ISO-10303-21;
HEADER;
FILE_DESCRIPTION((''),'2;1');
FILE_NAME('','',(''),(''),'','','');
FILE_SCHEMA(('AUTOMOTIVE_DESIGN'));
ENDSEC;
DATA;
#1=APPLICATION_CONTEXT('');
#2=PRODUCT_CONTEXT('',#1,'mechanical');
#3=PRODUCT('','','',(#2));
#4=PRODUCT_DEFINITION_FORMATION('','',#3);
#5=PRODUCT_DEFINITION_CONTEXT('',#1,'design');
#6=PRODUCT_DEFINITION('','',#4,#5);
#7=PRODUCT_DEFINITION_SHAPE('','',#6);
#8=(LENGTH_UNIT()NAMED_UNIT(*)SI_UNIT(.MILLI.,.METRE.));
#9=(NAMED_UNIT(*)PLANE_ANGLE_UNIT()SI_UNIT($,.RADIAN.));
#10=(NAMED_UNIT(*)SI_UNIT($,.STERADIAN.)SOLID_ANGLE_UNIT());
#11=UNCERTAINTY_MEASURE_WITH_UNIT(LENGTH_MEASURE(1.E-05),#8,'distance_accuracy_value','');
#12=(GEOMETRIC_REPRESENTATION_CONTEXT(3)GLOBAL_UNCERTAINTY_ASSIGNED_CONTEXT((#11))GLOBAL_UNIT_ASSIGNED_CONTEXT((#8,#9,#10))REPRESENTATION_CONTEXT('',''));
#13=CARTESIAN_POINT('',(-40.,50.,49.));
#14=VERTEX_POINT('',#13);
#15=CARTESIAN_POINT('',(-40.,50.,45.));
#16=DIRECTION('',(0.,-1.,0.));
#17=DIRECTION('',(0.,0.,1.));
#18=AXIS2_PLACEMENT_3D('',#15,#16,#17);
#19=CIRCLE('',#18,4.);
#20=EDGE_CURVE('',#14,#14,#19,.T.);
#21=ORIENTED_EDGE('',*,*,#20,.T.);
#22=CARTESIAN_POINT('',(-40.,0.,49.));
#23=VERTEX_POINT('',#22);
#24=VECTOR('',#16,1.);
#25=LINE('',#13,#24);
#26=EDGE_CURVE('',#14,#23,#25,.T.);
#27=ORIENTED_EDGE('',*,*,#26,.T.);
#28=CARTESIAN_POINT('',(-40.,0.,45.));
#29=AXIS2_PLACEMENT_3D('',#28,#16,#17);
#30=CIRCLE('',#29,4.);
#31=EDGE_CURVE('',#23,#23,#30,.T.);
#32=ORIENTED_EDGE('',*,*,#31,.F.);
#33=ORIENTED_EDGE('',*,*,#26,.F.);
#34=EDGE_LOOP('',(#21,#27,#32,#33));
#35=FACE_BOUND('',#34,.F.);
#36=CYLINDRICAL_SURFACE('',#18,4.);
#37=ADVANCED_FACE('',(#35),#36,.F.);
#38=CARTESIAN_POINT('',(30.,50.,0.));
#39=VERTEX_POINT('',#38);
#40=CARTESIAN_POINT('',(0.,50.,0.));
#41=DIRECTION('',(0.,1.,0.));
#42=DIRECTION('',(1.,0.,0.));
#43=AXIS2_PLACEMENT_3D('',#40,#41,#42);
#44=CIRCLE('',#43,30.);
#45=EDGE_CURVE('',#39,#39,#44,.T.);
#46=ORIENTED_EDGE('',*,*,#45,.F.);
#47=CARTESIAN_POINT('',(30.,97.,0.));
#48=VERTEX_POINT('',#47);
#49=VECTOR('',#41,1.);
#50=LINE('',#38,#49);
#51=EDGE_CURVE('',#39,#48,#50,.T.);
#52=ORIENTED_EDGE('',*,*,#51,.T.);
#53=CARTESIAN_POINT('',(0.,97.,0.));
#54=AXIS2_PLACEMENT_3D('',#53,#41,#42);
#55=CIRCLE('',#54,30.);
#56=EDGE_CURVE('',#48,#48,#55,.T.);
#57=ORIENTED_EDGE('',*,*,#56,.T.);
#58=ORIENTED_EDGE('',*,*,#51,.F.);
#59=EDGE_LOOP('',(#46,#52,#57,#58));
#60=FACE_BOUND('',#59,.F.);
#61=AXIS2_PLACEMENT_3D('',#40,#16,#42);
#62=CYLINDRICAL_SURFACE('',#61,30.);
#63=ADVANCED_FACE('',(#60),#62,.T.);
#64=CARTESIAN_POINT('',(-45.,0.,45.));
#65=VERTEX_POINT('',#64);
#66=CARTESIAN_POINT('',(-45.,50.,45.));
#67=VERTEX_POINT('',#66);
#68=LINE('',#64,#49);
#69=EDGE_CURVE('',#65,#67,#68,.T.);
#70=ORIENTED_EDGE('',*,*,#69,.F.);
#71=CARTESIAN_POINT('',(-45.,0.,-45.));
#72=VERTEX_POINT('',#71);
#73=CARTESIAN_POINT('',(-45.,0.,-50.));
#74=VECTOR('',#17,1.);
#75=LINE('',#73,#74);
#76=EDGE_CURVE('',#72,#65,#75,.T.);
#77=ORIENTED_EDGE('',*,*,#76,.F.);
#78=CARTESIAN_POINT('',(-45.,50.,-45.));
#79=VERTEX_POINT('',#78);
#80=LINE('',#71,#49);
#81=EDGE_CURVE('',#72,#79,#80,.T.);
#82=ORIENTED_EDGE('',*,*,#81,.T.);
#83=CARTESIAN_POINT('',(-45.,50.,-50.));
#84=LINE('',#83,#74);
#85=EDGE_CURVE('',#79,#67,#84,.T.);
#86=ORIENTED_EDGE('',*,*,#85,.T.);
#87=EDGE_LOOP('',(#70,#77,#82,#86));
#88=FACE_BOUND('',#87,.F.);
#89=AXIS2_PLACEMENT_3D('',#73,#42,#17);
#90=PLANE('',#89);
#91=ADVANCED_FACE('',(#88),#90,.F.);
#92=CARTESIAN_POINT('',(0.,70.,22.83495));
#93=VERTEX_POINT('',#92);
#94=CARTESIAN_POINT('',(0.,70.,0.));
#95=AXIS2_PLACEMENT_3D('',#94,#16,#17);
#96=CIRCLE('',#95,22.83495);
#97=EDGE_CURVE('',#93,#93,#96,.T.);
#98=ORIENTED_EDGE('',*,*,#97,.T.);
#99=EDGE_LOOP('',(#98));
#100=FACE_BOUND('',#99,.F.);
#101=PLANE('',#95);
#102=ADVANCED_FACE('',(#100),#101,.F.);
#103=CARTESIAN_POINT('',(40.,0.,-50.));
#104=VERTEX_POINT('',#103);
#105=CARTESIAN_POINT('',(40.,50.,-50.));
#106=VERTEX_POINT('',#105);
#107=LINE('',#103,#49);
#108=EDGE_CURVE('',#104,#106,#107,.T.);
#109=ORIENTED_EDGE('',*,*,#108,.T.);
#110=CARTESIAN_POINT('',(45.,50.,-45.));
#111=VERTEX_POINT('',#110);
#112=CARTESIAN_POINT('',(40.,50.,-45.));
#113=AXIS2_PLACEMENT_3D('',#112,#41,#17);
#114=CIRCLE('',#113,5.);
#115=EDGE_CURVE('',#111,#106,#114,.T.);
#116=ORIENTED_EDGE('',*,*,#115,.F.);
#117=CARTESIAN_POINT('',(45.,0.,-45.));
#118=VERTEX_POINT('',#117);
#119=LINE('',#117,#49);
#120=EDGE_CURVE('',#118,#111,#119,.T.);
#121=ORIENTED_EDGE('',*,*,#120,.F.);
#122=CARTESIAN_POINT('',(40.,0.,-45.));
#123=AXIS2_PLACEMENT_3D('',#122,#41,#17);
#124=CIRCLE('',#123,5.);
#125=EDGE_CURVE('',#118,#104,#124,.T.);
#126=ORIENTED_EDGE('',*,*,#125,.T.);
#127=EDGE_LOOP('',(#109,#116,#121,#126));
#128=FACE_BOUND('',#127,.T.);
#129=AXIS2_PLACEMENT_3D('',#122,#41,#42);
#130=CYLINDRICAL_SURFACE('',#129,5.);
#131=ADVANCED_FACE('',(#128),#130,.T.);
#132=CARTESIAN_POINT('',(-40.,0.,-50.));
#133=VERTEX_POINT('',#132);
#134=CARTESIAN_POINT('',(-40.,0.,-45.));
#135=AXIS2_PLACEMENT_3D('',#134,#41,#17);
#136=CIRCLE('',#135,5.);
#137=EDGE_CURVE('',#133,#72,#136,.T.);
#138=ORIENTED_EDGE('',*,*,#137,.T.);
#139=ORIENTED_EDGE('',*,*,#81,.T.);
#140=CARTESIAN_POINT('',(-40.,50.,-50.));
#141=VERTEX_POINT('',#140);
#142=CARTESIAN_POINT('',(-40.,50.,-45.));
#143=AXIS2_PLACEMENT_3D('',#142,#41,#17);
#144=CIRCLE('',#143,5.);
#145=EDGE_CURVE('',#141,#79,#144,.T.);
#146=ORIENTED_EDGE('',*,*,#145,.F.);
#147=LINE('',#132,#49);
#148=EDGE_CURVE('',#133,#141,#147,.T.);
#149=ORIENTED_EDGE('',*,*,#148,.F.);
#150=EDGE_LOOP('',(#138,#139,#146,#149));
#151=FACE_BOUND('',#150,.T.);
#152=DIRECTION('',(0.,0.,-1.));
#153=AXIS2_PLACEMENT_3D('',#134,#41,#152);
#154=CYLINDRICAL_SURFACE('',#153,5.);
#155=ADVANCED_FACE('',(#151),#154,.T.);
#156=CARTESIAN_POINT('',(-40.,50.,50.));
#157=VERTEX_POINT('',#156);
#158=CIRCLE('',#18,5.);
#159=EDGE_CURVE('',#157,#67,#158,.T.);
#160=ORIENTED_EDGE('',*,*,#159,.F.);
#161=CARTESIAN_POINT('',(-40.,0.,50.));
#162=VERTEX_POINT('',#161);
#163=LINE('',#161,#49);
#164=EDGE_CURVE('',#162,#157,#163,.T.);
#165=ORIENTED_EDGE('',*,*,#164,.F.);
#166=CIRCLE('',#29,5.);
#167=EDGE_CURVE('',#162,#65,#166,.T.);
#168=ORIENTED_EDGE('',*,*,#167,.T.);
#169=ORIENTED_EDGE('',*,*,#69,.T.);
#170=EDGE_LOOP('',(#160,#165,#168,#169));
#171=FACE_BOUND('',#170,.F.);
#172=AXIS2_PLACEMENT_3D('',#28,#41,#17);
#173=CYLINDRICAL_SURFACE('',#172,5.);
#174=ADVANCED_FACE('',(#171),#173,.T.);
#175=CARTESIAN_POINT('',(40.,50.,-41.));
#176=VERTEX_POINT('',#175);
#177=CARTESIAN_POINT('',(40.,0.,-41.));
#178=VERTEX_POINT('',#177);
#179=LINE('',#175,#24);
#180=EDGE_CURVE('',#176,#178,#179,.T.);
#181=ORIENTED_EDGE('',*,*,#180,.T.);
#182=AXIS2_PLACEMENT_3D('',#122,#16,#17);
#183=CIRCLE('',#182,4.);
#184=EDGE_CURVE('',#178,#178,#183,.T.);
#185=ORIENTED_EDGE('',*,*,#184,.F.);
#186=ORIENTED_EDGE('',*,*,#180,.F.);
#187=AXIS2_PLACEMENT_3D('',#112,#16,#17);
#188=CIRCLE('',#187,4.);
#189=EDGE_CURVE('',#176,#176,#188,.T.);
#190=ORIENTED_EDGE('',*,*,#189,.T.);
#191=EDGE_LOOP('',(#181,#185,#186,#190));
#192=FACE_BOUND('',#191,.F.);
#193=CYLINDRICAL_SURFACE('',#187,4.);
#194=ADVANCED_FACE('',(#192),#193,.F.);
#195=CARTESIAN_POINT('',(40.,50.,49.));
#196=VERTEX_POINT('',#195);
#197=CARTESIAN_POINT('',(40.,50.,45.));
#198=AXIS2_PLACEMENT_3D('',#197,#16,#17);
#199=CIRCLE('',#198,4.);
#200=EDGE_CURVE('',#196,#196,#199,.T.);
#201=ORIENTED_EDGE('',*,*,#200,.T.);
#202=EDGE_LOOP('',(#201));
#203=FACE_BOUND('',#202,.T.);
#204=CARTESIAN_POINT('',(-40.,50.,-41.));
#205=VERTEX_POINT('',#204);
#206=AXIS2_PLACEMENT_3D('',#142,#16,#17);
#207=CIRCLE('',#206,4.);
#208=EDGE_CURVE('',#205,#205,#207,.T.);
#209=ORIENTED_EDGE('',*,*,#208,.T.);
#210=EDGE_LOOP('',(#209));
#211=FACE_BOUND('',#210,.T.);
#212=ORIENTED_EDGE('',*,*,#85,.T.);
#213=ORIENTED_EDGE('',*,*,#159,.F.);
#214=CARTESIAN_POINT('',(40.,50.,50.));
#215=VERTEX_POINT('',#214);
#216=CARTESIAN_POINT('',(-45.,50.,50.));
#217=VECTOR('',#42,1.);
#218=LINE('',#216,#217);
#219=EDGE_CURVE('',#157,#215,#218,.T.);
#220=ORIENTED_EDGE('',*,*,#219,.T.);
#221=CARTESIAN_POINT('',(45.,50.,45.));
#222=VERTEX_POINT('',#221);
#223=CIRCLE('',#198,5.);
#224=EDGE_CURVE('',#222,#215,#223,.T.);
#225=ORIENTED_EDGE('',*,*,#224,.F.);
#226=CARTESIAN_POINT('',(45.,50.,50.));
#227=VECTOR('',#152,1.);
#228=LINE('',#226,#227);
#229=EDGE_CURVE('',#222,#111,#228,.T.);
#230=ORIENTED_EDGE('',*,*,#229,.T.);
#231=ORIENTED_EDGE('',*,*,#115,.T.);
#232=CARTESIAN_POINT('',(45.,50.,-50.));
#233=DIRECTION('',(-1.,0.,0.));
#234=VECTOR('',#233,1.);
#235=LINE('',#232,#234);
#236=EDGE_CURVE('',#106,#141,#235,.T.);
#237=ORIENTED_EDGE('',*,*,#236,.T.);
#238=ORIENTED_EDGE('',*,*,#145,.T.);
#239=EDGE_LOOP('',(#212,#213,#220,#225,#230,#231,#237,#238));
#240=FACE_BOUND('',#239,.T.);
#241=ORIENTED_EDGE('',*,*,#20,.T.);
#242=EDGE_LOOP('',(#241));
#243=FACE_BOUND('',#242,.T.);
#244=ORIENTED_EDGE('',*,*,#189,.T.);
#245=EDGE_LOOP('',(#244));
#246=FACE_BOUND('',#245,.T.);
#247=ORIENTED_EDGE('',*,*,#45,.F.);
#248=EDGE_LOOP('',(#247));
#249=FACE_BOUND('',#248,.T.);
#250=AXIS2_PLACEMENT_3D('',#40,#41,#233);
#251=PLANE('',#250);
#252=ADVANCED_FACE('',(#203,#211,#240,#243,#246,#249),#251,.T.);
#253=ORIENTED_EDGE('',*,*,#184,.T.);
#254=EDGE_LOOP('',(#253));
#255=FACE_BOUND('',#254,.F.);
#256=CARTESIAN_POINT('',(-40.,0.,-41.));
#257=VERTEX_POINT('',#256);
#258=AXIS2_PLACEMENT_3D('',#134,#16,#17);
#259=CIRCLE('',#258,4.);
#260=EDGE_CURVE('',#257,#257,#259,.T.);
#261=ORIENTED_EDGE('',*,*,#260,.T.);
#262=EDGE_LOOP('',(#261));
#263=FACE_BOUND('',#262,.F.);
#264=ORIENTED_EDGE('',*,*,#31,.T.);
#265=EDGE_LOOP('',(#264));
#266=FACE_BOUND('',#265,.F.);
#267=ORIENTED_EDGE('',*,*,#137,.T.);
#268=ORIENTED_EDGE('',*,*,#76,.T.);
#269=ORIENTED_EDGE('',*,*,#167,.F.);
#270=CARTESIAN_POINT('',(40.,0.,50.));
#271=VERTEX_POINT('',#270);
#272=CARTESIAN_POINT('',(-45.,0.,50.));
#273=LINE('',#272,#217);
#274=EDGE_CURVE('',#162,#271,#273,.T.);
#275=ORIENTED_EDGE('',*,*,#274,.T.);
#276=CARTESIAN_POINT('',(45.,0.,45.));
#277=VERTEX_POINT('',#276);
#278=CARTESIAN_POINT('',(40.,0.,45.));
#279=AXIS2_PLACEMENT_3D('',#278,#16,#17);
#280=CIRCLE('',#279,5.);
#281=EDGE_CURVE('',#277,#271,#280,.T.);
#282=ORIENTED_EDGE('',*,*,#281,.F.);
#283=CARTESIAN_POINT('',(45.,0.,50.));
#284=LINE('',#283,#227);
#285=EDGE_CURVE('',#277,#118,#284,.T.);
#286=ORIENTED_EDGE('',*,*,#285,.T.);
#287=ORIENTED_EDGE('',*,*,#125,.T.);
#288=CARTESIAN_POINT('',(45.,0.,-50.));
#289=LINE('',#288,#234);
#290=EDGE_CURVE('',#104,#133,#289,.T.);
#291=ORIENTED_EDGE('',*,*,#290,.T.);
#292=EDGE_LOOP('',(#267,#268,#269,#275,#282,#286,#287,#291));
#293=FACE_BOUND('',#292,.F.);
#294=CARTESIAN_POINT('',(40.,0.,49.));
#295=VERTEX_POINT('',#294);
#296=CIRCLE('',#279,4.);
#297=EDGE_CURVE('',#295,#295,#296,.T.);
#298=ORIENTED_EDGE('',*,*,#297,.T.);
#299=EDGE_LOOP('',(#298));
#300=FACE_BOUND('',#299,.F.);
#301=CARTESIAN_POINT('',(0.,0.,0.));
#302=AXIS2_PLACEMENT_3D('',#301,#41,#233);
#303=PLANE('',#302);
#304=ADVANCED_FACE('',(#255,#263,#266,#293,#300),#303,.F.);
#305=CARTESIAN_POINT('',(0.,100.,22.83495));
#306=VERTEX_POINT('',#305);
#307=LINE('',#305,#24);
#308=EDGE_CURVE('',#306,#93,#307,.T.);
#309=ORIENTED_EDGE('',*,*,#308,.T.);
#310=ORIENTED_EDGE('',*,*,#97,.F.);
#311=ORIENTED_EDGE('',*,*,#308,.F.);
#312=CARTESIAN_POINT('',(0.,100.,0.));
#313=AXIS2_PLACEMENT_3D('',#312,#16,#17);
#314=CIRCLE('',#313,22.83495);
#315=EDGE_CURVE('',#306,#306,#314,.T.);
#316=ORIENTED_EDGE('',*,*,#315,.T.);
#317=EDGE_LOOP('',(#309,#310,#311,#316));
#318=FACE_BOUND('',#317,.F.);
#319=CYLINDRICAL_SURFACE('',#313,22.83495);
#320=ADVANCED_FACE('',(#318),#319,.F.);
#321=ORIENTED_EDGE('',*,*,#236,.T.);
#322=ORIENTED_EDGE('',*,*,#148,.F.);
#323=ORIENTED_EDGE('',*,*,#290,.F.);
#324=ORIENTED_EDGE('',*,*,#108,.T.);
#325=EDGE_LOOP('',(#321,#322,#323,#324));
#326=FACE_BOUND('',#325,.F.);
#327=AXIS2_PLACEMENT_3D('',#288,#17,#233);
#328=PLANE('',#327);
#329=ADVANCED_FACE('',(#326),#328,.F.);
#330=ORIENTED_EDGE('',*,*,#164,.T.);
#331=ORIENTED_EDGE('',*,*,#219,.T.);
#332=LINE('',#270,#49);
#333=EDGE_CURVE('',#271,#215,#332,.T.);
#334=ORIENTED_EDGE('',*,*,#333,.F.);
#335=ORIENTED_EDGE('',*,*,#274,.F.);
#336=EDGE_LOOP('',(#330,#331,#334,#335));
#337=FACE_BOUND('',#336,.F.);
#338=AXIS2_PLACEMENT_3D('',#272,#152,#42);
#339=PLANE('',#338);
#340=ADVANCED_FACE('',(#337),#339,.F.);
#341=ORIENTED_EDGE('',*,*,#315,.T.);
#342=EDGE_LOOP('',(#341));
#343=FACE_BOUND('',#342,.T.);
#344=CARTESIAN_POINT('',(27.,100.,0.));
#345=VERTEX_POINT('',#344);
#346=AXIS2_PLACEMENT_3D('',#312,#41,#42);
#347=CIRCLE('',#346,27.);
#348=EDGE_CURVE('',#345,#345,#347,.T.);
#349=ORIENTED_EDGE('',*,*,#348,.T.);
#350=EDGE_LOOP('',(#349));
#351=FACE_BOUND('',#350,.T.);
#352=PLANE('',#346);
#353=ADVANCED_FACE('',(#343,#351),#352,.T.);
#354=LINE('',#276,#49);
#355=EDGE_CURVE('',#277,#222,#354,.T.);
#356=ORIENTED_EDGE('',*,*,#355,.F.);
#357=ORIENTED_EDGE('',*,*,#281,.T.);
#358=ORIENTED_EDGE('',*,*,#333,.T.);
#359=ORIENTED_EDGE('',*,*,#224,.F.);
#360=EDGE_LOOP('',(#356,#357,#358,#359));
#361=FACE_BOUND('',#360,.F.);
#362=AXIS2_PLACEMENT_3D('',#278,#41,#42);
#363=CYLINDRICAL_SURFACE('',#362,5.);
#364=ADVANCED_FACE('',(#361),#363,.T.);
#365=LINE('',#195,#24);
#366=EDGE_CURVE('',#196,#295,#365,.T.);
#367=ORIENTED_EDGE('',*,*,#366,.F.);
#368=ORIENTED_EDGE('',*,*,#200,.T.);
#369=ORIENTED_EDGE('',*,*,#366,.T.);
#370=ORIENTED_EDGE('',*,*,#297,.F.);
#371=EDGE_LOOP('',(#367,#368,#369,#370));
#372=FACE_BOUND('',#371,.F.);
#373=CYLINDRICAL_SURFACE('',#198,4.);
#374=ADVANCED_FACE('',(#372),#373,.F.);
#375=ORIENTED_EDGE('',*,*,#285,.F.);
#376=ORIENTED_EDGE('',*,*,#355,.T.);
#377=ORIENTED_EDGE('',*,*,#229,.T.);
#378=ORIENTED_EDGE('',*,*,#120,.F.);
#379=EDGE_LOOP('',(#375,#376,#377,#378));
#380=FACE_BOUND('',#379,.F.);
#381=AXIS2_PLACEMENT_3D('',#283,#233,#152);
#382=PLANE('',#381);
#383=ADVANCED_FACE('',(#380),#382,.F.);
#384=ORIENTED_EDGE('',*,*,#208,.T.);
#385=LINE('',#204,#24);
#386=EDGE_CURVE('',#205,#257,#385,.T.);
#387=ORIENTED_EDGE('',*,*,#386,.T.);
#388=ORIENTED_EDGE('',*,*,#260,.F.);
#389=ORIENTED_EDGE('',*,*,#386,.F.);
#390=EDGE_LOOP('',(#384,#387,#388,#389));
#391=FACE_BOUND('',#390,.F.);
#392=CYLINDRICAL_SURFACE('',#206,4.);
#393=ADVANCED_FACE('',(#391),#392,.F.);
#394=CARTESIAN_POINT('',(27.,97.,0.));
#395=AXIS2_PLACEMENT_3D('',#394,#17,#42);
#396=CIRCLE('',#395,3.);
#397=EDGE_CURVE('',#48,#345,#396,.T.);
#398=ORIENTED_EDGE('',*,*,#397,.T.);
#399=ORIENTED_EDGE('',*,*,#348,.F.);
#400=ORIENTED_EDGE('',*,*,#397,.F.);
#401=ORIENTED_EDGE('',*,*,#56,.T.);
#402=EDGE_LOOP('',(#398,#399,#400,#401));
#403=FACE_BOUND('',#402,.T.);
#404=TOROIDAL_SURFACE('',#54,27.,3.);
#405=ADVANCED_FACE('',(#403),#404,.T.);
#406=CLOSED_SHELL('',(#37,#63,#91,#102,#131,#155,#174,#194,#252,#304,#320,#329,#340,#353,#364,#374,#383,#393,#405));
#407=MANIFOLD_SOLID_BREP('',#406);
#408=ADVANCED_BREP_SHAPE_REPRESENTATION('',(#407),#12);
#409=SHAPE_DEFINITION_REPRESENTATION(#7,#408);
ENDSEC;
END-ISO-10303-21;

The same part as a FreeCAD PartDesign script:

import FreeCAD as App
import Part
import Sketcher

V = App.Vector
Q = App.Units.Quantity


def edges_at(feature, points):
    """Names of the edges that pass closest to the given points."""
    edges = feature.Shape.Edges
    near = lambda p: min(range(len(edges)), key=lambda i: edges[i].distToShape(Part.Vertex(*p))[0])
    return sorted({f"Edge{near(p) + 1}" for p in points})


def add_polygon(sketch, points):
    """Adds a closed chain of lines whose ends are joined by coincident constraints."""
    first, n = sketch.GeometryCount, len(points)
    for a, b in zip(points, points[1:] + points[:1]):
        sketch.addGeometry(Part.LineSegment(App.Vector(*a, 0), App.Vector(*b, 0)), False)
    for i in range(n):
        sketch.addConstraint(Sketcher.Constraint("Coincident", first + i, 2, first + (i + 1) % n, 1))

doc = App.newDocument("Part")
body = doc.addObject("PartDesign::Body", "Body")

sketch1 = body.newObject("Sketcher::SketchObject", "Sketch")
sketch1.AttachmentSupport = (doc.getObject("XZ_Plane"), [""])
sketch1.MapMode = "FlatFace"
add_polygon(sketch1, [(45, 50), (45, -50), (-45, -50), (-45, 50)])
sketch1.addConstraint([
    Sketcher.Constraint("Vertical", 0),
    Sketcher.Constraint("Horizontal", 1),
    Sketcher.Constraint("Vertical", 2),
    Sketcher.Constraint("Horizontal", 3),
    Sketcher.Constraint("Symmetric", 0, 2, 2, 2, -1, 1),
    Sketcher.Constraint("DistanceX", 1, 2, 1, 1, Q("90 mm")),
    Sketcher.Constraint("DistanceY", 0, 2, 0, 1, Q("100 mm")),
])
pad1 = body.newObject("PartDesign::Pad", "Pad")
pad1.Profile = sketch1
pad1.Length = 50
pad1.Reversed = True

sketch2 = body.newObject("Sketcher::SketchObject", "Sketch001")
sketch2.AttachmentSupport = (doc.getObject("XZ_Plane"), [""])
sketch2.MapMode = "FlatFace"
sketch2.AttachmentOffset = App.Placement(V(0, 0, -50), App.Rotation())
sketch2.addGeometry(Part.Circle(V(0, 0, 0), V(0, 0, 1), 30), False)
sketch2.addConstraint([
    Sketcher.Constraint("Coincident", 0, 3, -1, 1),
    Sketcher.Constraint("Diameter", 0, Q("60 mm")),
])
pad2 = body.newObject("PartDesign::Pad", "Pad001")
pad2.Profile = sketch2
pad2.Length = 50
pad2.Reversed = True
doc.recompute()

fillet = body.newObject("PartDesign::Fillet", "Fillet")
fillet.Base = (pad2, edges_at(pad2, [(-30, 100, 0)]))
fillet.Radius = 3

sketch3 = body.newObject("Sketcher::SketchObject", "Sketch002")
sketch3.AttachmentSupport = (doc.getObject("XZ_Plane"), [""])
sketch3.MapMode = "FlatFace"
sketch3.AttachmentOffset = App.Placement(V(0, 0, -100), App.Rotation())
sketch3.addGeometry(Part.Circle(V(0, 0, 0), V(0, 0, 1), 23), False)
sketch3.addConstraint([
    Sketcher.Constraint("Coincident", 0, 3, -1, 1),
    Sketcher.Constraint("Diameter", 0, Q("45.67 mm")),
])
doc.recompute()
hole = body.newObject("PartDesign::Hole", "Hole")
hole.Profile = sketch3
hole.ThreadType = "None"
hole.Diameter = 45.6699
hole.DepthType = "Dimension"
hole.Depth = 30
hole.DrillPoint = "Flat"
hole.Reversed = True
doc.recompute()

fillet2 = body.newObject("PartDesign::Fillet", "Fillet001")
fillet2.Base = (hole, edges_at(hole, [(45, 25, 50)]))
fillet2.Radius = 5
doc.recompute()

fillet3 = body.newObject("PartDesign::Fillet", "Fillet002")
fillet3.Base = (fillet2, edges_at(fillet2, [(-45, 25, 50)]))
fillet3.Radius = 5
doc.recompute()

fillet4 = body.newObject("PartDesign::Fillet", "Fillet003")
fillet4.Base = (fillet3, edges_at(fillet3, [(45, 25, -50)]))
fillet4.Radius = 5
doc.recompute()

fillet5 = body.newObject("PartDesign::Fillet", "Fillet004")
fillet5.Base = (fillet4, edges_at(fillet4, [(-45, 25, -50)]))
fillet5.Radius = 5

sketch4 = body.newObject("Sketcher::SketchObject", "Sketch003")
sketch4.AttachmentSupport = (doc.getObject("XZ_Plane"), [""])
sketch4.MapMode = "FlatFace"
sketch4.AttachmentOffset = App.Placement(V(0, 0, -50), App.Rotation())
sketch4.addGeometry([
    Part.Circle(V(-40, 45, 0), V(0, 0, 1), 4),
    Part.Circle(V(-40, -45, 0), V(0, 0, 1), 4),
    Part.Circle(V(40, -45, 0), V(0, 0, 1), 4),
    Part.Circle(V(40, 45, 0), V(0, 0, 1), 4),
], False)
sketch4.addConstraint([
    Sketcher.Constraint("Equal", 0, 1),
    Sketcher.Constraint("Equal", 1, 2),
    Sketcher.Constraint("Equal", 2, 3),
    Sketcher.Constraint("Symmetric", 0, 3, 2, 3, -1, 1),
    Sketcher.Constraint("Symmetric", 1, 3, 3, 3, -1, 1),
    Sketcher.Constraint("Symmetric", 1, 3, 2, 3, -2),
    Sketcher.Constraint("Diameter", 0, Q("8 mm")),
    Sketcher.Constraint("DistanceX", 0, 3, -1, 1, Q("40 mm")),
    Sketcher.Constraint("DistanceY", -1, 1, 0, 3, Q("45 mm")),
])
doc.recompute()
hole2 = body.newObject("PartDesign::Hole", "Hole001")
hole2.Profile = sketch4
hole2.ThreadType = "None"
hole2.Diameter = 8
hole2.DepthType = "Dimension"
hole2.Depth = 50
hole2.DrillPoint = "Flat"
hole2.Reversed = True

doc.recompute()
